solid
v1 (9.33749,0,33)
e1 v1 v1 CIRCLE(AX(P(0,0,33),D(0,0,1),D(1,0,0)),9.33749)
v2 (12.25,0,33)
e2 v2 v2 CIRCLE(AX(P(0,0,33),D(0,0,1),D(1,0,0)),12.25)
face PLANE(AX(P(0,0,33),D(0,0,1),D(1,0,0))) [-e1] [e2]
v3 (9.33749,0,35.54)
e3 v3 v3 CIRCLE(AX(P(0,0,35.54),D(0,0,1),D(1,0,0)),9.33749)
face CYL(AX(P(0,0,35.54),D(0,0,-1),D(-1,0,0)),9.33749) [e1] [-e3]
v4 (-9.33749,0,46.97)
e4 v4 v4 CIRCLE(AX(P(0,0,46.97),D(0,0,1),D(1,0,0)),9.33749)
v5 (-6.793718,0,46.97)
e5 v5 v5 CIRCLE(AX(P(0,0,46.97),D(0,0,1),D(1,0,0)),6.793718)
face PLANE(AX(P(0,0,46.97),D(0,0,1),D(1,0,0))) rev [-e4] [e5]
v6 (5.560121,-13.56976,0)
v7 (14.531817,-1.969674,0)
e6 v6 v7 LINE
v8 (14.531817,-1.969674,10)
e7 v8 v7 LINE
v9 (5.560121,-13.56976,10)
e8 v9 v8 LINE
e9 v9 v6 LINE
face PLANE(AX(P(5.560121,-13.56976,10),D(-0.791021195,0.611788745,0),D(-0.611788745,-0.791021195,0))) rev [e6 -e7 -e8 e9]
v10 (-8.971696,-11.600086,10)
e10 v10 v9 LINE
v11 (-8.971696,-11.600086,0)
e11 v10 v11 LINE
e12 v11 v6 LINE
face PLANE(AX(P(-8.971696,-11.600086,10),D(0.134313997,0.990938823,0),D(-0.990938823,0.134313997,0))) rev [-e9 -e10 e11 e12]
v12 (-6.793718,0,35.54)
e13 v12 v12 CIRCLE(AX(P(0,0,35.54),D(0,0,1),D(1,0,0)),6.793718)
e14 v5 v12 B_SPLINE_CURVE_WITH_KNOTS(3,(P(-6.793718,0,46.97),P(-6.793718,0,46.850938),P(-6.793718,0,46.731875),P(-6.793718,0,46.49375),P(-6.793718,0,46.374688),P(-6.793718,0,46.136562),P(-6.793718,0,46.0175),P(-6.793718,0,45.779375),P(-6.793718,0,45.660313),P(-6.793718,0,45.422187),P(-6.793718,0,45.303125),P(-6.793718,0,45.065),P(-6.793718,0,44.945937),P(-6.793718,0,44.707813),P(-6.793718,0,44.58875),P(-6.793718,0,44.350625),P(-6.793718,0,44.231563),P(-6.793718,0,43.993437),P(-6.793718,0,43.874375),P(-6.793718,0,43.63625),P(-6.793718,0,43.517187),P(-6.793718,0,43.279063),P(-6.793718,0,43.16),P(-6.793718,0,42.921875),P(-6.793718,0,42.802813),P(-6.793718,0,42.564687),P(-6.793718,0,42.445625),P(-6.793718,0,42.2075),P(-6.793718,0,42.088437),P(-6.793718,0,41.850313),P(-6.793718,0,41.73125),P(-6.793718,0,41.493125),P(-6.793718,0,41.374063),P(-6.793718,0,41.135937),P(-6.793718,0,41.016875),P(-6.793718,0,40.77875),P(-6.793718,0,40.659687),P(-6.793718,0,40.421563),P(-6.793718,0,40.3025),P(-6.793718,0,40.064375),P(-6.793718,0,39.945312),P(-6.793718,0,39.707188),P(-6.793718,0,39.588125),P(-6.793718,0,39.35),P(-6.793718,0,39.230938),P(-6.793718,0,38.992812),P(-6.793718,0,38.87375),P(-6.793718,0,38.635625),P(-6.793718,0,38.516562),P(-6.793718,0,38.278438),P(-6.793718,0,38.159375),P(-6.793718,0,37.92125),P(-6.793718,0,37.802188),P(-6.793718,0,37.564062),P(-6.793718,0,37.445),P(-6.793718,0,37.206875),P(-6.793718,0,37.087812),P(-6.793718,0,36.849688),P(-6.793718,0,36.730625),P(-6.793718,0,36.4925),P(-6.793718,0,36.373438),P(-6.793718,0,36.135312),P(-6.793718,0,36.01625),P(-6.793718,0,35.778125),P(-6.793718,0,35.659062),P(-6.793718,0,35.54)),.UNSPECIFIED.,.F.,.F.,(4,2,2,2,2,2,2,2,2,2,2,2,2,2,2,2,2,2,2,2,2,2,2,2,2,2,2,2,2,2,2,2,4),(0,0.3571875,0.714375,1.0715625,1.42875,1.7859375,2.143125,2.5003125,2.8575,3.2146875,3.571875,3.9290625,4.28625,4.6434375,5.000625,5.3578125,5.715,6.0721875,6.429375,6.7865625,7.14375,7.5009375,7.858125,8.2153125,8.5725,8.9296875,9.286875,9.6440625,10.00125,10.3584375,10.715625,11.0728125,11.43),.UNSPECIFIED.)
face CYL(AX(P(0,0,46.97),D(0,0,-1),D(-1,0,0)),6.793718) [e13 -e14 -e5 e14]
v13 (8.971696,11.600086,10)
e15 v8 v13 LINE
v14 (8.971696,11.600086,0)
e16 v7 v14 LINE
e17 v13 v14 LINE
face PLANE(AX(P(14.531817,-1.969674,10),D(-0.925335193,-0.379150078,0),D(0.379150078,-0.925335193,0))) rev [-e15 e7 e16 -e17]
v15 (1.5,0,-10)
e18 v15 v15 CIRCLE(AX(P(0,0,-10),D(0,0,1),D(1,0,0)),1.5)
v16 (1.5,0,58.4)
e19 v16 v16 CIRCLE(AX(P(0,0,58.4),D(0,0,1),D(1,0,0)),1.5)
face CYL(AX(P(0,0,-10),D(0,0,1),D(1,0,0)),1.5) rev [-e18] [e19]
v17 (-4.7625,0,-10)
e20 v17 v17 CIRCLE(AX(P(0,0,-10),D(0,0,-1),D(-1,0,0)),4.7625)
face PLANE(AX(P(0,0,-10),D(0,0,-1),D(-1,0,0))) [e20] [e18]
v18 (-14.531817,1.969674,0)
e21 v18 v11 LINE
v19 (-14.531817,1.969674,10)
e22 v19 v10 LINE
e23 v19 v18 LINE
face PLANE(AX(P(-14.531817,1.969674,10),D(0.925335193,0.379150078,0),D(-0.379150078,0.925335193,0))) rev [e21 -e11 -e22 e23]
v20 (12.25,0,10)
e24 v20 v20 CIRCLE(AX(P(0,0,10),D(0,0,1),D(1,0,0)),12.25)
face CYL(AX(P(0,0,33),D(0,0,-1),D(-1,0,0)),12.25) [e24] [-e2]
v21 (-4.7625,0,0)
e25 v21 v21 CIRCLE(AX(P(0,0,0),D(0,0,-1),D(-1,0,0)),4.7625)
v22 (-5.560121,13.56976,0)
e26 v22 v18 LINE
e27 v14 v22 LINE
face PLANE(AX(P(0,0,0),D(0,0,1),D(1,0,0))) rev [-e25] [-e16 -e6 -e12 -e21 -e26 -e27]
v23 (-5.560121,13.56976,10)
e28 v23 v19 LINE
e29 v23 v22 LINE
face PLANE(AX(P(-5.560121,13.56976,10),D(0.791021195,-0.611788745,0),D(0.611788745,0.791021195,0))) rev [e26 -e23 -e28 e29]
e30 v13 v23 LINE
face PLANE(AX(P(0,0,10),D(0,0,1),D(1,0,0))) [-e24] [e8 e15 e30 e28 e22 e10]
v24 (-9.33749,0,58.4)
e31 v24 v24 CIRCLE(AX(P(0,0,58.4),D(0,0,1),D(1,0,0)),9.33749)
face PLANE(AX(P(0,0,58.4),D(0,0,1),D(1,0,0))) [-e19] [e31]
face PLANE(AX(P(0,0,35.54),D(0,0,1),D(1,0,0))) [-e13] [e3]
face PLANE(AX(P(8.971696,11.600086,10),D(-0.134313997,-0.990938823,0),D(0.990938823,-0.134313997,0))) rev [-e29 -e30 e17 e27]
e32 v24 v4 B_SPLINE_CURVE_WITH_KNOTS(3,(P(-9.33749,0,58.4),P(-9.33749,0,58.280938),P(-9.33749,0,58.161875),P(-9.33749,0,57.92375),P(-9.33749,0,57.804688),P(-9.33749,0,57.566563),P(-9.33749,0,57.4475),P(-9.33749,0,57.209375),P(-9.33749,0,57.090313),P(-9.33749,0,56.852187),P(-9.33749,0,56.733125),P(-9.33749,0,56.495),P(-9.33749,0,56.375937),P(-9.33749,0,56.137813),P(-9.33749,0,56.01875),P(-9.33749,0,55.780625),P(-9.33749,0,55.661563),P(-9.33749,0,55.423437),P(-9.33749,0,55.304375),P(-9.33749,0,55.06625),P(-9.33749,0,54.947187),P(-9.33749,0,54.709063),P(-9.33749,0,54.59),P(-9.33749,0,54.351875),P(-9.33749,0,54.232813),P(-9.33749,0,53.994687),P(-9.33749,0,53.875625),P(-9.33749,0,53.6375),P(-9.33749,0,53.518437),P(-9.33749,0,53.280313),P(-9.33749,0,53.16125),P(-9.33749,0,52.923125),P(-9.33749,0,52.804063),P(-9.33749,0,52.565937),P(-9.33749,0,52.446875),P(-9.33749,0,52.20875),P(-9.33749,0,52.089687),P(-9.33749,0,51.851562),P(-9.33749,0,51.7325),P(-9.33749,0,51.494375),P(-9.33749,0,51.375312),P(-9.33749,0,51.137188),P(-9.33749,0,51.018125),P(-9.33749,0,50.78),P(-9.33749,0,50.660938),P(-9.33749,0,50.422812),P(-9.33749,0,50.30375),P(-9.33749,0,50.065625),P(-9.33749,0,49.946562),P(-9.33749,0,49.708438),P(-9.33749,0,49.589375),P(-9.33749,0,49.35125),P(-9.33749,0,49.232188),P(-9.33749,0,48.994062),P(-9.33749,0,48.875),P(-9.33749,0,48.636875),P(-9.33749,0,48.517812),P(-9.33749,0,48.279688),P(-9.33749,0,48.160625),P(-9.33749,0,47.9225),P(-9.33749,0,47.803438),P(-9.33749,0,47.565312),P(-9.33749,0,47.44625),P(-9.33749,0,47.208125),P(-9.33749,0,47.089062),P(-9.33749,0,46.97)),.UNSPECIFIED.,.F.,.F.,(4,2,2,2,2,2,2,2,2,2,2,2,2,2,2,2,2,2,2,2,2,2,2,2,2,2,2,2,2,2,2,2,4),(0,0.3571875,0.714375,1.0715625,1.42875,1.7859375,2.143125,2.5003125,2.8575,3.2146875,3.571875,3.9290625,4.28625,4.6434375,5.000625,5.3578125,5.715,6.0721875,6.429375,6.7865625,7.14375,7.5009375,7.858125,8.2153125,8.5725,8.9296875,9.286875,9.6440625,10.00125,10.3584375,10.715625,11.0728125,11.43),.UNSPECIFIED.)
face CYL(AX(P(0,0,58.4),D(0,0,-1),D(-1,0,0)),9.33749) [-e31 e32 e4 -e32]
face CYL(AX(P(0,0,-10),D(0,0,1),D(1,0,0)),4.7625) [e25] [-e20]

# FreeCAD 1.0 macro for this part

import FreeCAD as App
import Part
import Sketcher
from FreeCAD import Vector
Q = App.Units.Quantity


def add_polygon(sketch, points):
    """Adds a closed chain of lines whose ends are joined by coincident constraints."""
    first, n = sketch.GeometryCount, len(points)
    for a, b in zip(points, points[1:] + points[:1]):
        sketch.addGeometry(Part.LineSegment(App.Vector(*a, 0), App.Vector(*b, 0)), False)
    for i in range(n):
        sketch.addConstraint(Sketcher.Constraint("Coincident", first + i, 2, first + (i + 1) % n, 1))

doc = App.newDocument("Part")
body = doc.addObject("PartDesign::Body", "Body")

sketch1 = body.newObject("Sketcher::SketchObject", "Sketch")
sketch1.AttachmentSupport = (doc.getObject("XY_Plane"), [""])
sketch1.MapMode = "FlatFace"
add_polygon(sketch1, [(15, -2), (9, 12), (-6, 14), (-15, 2), (-9, -12), (6, -14)])
sketch1.addConstraint([
    Sketcher.Constraint("Symmetric", 0, 2, 3, 2, -1, 1),
    Sketcher.Constraint("Symmetric", 1, 2, 4, 2, -1, 1),
    Sketcher.Constraint("Symmetric", 2, 2, 5, 2, -1, 1),
    Sketcher.Constraint("Equal", 0, 1),
    Sketcher.Constraint("Equal", 1, 2),
    Sketcher.Constraint("DistanceX", 1, 2, -1, 1, Q("5.560121 mm")),
    Sketcher.Constraint("DistanceY", -1, 1, 1, 2, Q("13.56976 mm")),
    Sketcher.Constraint("DistanceY", 2, 2, 0, 2, Q("9.630412 mm")),
    Sketcher.Constraint("DistanceX", 2, 2, 3, 2, Q("5.560121 mm")),
])
pad1 = body.newObject("PartDesign::Pad", "Pad")
pad1.Profile = sketch1
pad1.Length = 10

sketch2 = body.newObject("Sketcher::SketchObject", "Sketch001")
sketch2.AttachmentSupport = (doc.getObject("XY_Plane"), [""])
sketch2.MapMode = "FlatFace"
sketch2.AttachmentOffset = App.Placement(Vector(0, 0, 10), App.Rotation())
sketch2.addGeometry(Part.Circle(Vector(0, 0, 0), Vector(0, 0, 1), 12), False)
sketch2.addConstraint([
    Sketcher.Constraint("Coincident", 0, 3, -1, 1),
    Sketcher.Constraint("Diameter", 0, Q("24.5 mm")),
])
pad2 = body.newObject("PartDesign::Pad", "Pad001")
pad2.Profile = sketch2
pad2.Length = 23

sketch3 = body.newObject("Sketcher::SketchObject", "Sketch002")
sketch3.AttachmentSupport = (doc.getObject("XY_Plane"), [""])
sketch3.MapMode = "FlatFace"
sketch3.addGeometry(Part.Circle(Vector(0, 0, 0), Vector(0, 0, 1), 4.8), False)
sketch3.addConstraint([
    Sketcher.Constraint("Coincident", 0, 3, -1, 1),
    Sketcher.Constraint("Diameter", 0, Q("9.525 mm")),
])
pad3 = body.newObject("PartDesign::Pad", "Pad002")
pad3.Profile = sketch3
pad3.Length = 10
pad3.Reversed = True

sketch4 = body.newObject("Sketcher::SketchObject", "Sketch003")
sketch4.AttachmentSupport = (doc.getObject("XY_Plane"), [""])
sketch4.MapMode = "FlatFace"
sketch4.AttachmentOffset = App.Placement(Vector(0, 0, 33), App.Rotation())
sketch4.addGeometry(Part.Circle(Vector(0, 0, 0), Vector(0, 0, 1), 9), False)
sketch4.addConstraint([
    Sketcher.Constraint("Coincident", 0, 3, -1, 1),
    Sketcher.Constraint("Diameter", 0, Q("18.674981 mm")),
])
pad4 = body.newObject("PartDesign::Pad", "Pad003")
pad4.Profile = sketch4
pad4.Length = 2.54

sketch5 = body.newObject("Sketcher::SketchObject", "Sketch004")
sketch5.AttachmentSupport = (doc.getObject("XY_Plane"), [""])
sketch5.MapMode = "FlatFace"
sketch5.AttachmentOffset = App.Placement(Vector(0, 0, 35.54), App.Rotation())
sketch5.addGeometry(Part.Circle(Vector(0, 0, 0), Vector(0, 0, 1), 7), False)
sketch5.addConstraint([
    Sketcher.Constraint("Coincident", 0, 3, -1, 1),
    Sketcher.Constraint("Diameter", 0, Q("13.587437 mm")),
])
pad5 = body.newObject("PartDesign::Pad", "Pad004")
pad5.Profile = sketch5
pad5.Length = 11.43

sketch6 = body.newObject("Sketcher::SketchObject", "Sketch005")
sketch6.AttachmentSupport = (doc.getObject("XY_Plane"), [""])
sketch6.MapMode = "FlatFace"
sketch6.AttachmentOffset = App.Placement(Vector(0, 0, 46.97), App.Rotation())
sketch6.addGeometry(Part.Circle(Vector(0, 0, 0), Vector(0, 0, 1), 9), False)
sketch6.addConstraint([
    Sketcher.Constraint("Coincident", 0, 3, -1, 1),
    Sketcher.Constraint("Diameter", 0, Q("18.674981 mm")),
])
pad6 = body.newObject("PartDesign::Pad", "Pad005")
pad6.Profile = sketch6
pad6.Length = 11.43

sketch7 = body.newObject("Sketcher::SketchObject", "Sketch006")
sketch7.AttachmentSupport = (doc.getObject("XY_Plane"), [""])
sketch7.MapMode = "FlatFace"
sketch7.AttachmentOffset = App.Placement(Vector(0, 0, 58.4), App.Rotation())
sketch7.addGeometry(Part.Circle(Vector(0, 0, 0), Vector(0, 0, 1), 1.5), False)
sketch7.addConstraint([
    Sketcher.Constraint("Coincident", 0, 3, -1, 1),
    Sketcher.Constraint("Diameter", 0, Q("3 mm")),
])
pocket1 = body.newObject("PartDesign::Pocket", "Pocket")
pocket1.Profile = sketch7
pocket1.Type = "ThroughAll"

doc.recompute()
